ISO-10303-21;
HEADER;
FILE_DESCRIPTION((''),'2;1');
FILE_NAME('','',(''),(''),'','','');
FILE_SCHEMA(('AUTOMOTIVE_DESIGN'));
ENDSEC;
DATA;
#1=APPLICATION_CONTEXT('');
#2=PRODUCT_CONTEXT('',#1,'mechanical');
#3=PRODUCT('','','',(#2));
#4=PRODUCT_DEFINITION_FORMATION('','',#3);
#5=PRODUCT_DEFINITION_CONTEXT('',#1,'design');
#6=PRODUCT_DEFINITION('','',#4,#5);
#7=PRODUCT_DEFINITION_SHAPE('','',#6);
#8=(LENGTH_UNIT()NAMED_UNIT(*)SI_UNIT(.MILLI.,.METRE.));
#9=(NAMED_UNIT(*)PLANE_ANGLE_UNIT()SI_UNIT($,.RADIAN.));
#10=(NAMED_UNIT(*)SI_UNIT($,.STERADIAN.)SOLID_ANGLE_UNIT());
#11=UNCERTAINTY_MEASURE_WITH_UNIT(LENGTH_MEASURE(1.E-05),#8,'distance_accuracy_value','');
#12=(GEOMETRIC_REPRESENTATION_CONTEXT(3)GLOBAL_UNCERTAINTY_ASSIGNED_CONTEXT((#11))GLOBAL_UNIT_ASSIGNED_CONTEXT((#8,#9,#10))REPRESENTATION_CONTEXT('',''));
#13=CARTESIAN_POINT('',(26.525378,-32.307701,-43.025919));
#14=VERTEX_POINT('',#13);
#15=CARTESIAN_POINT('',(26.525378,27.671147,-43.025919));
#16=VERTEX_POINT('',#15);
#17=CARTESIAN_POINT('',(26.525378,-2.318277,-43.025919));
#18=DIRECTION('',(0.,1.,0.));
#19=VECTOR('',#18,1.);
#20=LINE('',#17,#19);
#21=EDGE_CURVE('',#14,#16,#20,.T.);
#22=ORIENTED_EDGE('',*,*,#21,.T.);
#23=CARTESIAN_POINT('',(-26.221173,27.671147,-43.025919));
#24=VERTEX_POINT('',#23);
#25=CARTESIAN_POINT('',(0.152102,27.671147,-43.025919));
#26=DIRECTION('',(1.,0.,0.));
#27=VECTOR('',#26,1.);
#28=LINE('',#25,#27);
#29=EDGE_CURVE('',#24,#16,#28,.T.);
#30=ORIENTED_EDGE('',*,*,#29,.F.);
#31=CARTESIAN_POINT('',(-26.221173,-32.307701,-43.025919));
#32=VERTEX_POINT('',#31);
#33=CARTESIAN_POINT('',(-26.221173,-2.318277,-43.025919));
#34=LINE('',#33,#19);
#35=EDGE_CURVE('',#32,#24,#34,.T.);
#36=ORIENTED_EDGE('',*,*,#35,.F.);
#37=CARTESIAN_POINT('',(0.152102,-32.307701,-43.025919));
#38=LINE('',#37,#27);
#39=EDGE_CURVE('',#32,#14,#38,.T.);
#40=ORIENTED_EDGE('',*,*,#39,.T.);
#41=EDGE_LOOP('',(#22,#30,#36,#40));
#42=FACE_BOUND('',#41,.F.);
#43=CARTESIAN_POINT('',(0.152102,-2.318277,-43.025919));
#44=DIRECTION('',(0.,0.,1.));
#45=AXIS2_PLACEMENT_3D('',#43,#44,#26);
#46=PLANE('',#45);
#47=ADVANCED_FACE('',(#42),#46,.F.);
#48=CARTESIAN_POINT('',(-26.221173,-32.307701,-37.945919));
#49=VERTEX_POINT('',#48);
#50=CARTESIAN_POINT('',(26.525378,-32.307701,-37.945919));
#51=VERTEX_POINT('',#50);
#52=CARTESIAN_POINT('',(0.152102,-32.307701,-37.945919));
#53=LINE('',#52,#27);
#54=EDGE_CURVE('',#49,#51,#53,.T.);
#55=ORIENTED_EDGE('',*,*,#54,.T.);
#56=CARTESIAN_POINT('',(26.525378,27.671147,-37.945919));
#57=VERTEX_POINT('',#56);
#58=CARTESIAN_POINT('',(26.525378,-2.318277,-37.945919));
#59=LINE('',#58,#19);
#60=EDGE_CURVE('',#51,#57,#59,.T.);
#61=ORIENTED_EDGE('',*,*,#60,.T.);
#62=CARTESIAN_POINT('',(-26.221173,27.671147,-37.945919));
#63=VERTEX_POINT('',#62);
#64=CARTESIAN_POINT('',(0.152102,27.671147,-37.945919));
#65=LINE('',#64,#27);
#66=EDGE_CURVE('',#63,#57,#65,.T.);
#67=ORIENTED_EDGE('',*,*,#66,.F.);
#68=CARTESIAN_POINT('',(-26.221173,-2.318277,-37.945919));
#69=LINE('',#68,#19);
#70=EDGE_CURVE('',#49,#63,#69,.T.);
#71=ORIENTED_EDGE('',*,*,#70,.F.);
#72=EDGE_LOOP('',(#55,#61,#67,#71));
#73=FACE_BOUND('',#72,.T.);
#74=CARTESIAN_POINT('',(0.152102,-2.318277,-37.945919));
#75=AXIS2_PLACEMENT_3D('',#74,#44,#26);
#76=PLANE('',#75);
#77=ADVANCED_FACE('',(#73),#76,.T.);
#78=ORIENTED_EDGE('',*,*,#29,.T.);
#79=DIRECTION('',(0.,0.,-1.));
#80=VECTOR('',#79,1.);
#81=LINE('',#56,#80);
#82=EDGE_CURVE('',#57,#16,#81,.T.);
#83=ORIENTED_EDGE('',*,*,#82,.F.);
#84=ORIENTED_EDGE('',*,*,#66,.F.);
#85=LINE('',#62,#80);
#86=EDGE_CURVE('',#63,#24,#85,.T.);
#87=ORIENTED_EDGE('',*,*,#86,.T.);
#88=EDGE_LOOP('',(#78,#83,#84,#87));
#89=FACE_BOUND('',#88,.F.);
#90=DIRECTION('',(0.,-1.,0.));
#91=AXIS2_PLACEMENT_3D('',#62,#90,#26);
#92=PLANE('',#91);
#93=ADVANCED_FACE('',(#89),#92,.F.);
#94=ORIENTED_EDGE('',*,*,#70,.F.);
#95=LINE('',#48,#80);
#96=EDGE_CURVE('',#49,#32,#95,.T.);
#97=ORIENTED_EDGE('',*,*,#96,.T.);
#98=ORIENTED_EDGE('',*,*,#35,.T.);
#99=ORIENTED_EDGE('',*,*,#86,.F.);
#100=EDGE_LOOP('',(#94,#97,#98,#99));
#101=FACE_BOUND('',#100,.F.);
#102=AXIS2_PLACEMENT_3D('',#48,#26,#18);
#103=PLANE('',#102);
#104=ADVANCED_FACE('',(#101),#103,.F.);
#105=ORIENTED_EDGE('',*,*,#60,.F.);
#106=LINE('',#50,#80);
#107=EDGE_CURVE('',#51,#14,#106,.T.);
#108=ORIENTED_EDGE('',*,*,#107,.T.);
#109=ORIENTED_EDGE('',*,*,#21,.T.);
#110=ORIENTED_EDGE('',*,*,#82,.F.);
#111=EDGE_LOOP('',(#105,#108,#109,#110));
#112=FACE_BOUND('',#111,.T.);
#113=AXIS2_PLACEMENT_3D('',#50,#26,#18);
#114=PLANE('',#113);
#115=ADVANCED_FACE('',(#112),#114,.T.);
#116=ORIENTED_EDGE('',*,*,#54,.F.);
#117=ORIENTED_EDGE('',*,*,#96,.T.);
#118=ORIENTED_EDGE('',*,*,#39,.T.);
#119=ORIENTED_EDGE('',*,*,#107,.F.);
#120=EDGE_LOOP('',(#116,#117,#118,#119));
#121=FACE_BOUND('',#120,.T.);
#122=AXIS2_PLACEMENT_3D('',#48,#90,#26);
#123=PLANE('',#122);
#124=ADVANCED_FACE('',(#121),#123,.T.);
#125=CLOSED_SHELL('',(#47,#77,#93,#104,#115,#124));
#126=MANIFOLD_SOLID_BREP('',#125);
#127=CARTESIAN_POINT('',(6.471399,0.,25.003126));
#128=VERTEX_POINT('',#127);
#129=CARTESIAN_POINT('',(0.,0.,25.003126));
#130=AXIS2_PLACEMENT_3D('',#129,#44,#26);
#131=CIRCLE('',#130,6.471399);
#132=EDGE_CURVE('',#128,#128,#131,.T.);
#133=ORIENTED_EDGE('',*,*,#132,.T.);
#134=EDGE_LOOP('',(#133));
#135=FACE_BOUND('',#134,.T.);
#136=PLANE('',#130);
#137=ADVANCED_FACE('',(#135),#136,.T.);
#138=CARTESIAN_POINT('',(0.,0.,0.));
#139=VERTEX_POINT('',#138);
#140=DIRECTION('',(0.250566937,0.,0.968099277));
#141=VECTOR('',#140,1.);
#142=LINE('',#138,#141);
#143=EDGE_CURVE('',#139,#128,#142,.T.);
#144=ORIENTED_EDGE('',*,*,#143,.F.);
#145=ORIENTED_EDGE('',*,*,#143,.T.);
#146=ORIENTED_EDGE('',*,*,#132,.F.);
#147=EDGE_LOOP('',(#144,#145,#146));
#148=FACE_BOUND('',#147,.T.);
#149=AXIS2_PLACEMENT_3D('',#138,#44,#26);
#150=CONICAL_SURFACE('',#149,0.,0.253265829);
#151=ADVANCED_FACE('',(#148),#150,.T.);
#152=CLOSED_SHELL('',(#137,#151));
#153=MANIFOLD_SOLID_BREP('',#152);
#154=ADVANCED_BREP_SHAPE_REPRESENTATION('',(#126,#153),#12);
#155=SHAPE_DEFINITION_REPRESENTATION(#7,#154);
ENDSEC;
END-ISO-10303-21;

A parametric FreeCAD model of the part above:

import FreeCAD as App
import Part
import Sketcher
Q = App.Units.Quantity

doc = App.newDocument("Part")
body = doc.addObject("PartDesign::Body", "Body")
body.AllowCompound = True

# Sketch on XZ plane
sketch1 = body.newObject("Sketcher::SketchObject", "Sketch")
sketch1.AttachmentSupport = (doc.getObject("XZ_Plane"), [""])
sketch1.MapMode = "FlatFace"
sketch1.addGeometry([
    Part.LineSegment(App.Vector(0, 25.003126, 0), App.Vector(0, 0, 0)),  # 0
    Part.LineSegment(App.Vector(0, 0, 0), App.Vector(6.471399, 25.003126, 0)),  # 1
    Part.LineSegment(App.Vector(6.471399, 25.003126, 0), App.Vector(0, 25.003126, 0)),  # 2
    Part.LineSegment(App.Vector(0, -37.945918, 0), App.Vector(0, -42.946543, 0)),  # 3
    Part.LineSegment(App.Vector(0, -42.946543, 0), App.Vector(16.472649, -42.946543, 0)),  # 4
    Part.LineSegment(App.Vector(16.472649, -42.946543, 0), App.Vector(16.472649, -37.945918, 0)),  # 5
    Part.LineSegment(App.Vector(16.472649, -37.945918, 0), App.Vector(0, -37.945918, 0)),  # 6
], False)
sketch1.addConstraint([
    Sketcher.Constraint("Coincident", 0, 2, 1, 1),
    Sketcher.Constraint("Coincident", 1, 2, 2, 1),
    Sketcher.Constraint("Coincident", 2, 2, 0, 1),
    Sketcher.Constraint("Coincident", 3, 2, 4, 1),
    Sketcher.Constraint("Coincident", 4, 2, 5, 1),
    Sketcher.Constraint("Coincident", 5, 2, 6, 1),
    Sketcher.Constraint("Coincident", 6, 2, 3, 1),
    Sketcher.Constraint("Vertical", 0),
    Sketcher.Constraint("Horizontal", 2),
    Sketcher.Constraint("Vertical", 3),
    Sketcher.Constraint("Horizontal", 4),
    Sketcher.Constraint("Vertical", 5),
    Sketcher.Constraint("Horizontal", 6),
    Sketcher.Constraint("Coincident", 0, 2, -1, 1),
    Sketcher.Constraint("PointOnObject", 3, 2, -2),
    Sketcher.Constraint("DistanceY", 0, 2, 0, 1, Q("0.984375 in")),
    Sketcher.Constraint("DistanceX", 2, 2, 2, 1, Q("6.471399 mm")),
    Sketcher.Constraint("DistanceX", 4, 1, 4, 2, Q("16.472649 mm")),
    Sketcher.Constraint("DistanceY", 3, 2, 3, 1, Q("5.000625 mm")),
    Sketcher.Constraint("DistanceY", 5, 2, -1, 1, Q("37.945918 mm")),
])
revolution = body.newObject("PartDesign::Revolution", "Revolution")
revolution.Profile = sketch1
revolution.ReferenceAxis = (sketch1, ["V_Axis"])
revolution.Angle = 360

# Sketch on XY plane
sketch2 = body.newObject("Sketcher::SketchObject", "Sketch001")
sketch2.AttachmentSupport = (doc.getObject("XY_Plane"), [""])
sketch2.MapMode = "FlatFace"
sketch2.AttachmentOffset = App.Placement(App.Vector(0, 0, -37.945919), App.Rotation())
sketch2.addGeometry([
    Part.LineSegment(App.Vector(-26.221173, 27.671147, 0), App.Vector(-26.221173, -32.307701, 0)),
    Part.LineSegment(App.Vector(-26.221173, -32.307701, 0), App.Vector(26.525378, -32.307701, 0)),
    Part.LineSegment(App.Vector(26.525378, -32.307701, 0), App.Vector(26.525378, 27.671147, 0)),
    Part.LineSegment(App.Vector(26.525378, 27.671147, 0), App.Vector(-26.221173, 27.671147, 0)),
], False)
sketch2.addConstraint([
    Sketcher.Constraint("Coincident", 0, 2, 1, 1),
    Sketcher.Constraint("Coincident", 1, 2, 2, 1),
    Sketcher.Constraint("Coincident", 2, 2, 3, 1),
    Sketcher.Constraint("Coincident", 3, 2, 0, 1),
    Sketcher.Constraint("Vertical", 0),
    Sketcher.Constraint("Horizontal", 1),
    Sketcher.Constraint("Vertical", 2),
    Sketcher.Constraint("Horizontal", 3),
    Sketcher.Constraint("DistanceX", 1, 1, 1, 2, Q("52.746551 mm")),
    Sketcher.Constraint("DistanceY", 0, 2, -1, 1, Q("32.307701 mm")),
    Sketcher.Constraint("DistanceY", 0, 2, 0, 1, Q("59.978848 mm")),
    Sketcher.Constraint("DistanceX", 0, 2, -1, 1, Q("26.221173 mm")),
])
pad1 = body.newObject("PartDesign::Pad", "Pad")
pad1.Profile = sketch2
pad1.Length = Q("0.2 in")
pad1.Reversed = True

doc.recompute()
